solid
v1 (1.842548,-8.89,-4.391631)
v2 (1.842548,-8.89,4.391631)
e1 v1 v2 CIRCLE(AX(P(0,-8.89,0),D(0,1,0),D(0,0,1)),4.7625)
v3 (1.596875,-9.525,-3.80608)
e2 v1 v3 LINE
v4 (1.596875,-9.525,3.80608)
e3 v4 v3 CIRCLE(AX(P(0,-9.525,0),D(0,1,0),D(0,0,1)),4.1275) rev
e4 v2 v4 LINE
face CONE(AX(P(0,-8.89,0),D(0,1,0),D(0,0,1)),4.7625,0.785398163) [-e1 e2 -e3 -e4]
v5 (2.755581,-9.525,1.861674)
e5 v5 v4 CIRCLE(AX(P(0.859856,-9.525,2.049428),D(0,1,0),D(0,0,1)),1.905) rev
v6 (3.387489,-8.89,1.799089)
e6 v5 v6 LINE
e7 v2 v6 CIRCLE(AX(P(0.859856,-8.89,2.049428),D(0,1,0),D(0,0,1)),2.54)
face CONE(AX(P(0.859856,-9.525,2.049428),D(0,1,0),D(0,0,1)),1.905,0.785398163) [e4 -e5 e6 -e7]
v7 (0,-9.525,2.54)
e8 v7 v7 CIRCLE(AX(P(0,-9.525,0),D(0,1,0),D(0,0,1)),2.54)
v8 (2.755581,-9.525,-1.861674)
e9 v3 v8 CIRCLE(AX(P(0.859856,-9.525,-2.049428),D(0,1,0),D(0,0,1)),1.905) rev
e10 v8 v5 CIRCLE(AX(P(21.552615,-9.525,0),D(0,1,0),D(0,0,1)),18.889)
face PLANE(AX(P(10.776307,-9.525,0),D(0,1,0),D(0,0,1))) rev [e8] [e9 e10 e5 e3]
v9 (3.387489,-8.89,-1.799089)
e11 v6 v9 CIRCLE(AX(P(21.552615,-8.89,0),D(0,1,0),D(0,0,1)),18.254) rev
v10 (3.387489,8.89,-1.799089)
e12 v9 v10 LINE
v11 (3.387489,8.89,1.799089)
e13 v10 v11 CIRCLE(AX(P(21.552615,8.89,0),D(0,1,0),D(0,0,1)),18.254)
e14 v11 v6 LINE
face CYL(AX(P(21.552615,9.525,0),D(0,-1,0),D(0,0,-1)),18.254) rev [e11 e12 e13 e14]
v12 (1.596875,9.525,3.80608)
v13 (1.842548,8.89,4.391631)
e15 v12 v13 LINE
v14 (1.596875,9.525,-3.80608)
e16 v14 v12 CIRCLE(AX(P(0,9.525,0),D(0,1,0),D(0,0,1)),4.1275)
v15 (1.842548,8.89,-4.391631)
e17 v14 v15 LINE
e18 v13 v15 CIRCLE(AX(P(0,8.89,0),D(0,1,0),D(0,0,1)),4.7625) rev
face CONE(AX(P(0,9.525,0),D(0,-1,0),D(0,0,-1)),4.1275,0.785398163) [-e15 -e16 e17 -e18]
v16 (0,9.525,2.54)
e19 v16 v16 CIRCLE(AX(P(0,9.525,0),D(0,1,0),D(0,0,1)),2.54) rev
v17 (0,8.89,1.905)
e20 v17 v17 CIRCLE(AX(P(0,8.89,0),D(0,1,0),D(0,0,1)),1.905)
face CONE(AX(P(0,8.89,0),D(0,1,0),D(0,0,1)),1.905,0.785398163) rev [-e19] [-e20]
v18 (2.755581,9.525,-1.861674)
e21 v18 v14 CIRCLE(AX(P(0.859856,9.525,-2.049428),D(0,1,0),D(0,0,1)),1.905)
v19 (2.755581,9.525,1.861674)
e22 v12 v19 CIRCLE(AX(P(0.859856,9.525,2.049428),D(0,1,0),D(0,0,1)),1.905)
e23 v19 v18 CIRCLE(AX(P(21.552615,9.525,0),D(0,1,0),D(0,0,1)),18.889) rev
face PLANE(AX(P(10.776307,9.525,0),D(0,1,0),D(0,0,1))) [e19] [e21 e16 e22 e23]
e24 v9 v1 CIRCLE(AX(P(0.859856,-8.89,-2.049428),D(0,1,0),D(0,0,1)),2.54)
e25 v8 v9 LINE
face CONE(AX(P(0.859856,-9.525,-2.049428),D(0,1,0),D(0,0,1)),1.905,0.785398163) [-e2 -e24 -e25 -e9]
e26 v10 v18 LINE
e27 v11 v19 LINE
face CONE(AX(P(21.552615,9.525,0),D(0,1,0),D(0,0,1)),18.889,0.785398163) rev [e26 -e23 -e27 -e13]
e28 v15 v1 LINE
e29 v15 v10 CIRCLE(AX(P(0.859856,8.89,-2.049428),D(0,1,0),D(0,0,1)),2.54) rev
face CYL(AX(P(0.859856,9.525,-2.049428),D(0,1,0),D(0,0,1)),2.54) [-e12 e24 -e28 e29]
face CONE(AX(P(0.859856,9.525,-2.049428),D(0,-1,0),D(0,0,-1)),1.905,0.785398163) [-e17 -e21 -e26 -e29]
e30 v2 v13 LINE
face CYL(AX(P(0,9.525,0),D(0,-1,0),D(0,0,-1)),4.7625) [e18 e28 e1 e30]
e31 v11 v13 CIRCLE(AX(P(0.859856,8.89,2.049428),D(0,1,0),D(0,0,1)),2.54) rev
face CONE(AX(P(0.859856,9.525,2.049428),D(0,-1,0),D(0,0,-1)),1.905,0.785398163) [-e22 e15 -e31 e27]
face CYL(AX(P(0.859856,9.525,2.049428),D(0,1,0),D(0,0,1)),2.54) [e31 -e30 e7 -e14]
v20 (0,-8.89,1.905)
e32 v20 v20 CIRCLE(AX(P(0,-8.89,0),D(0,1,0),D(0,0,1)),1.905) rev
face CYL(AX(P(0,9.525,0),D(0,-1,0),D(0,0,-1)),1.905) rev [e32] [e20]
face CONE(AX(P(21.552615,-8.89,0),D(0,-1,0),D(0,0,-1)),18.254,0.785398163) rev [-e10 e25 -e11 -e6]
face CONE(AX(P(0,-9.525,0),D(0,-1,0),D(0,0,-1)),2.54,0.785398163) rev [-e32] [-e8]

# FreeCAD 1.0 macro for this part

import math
import FreeCAD as App
import Part
import Sketcher
Q = App.Units.Quantity


def edges_at(feature, points):
    """Names of the edges that pass closest to the given points."""
    edges = feature.Shape.Edges
    near = lambda p: min(range(len(edges)), key=lambda i: edges[i].distToShape(Part.Vertex(*p))[0])
    return sorted({f"Edge{near(p) + 1}" for p in points})

doc = App.newDocument("Part")
body = doc.addObject("PartDesign::Body", "Body")

# Sketch on XZ plane
sketch1 = body.newObject("Sketcher::SketchObject", "Sketch")
sketch1.AttachmentSupport = (doc.getObject("XZ_Plane"), [""])
sketch1.MapMode = "FlatFace"
sketch1.addGeometry(Part.ArcOfCircle(Part.Circle(App.Vector(21.6, 0, 0), App.Vector(0, 0, 1), 18.3), math.radians(170.06), math.radians(189.94)), False)
sketch1.addGeometry(Part.ArcOfCircle(Part.Circle(App.Vector(0, 0, 0), App.Vector(0, 0, 1), 4.8), math.radians(41), math.radians(319)), False)
sketch1.addGeometry(Part.Circle(App.Vector(0, 0, 0), App.Vector(0, 0, 1), 1.9), False)
sketch1.addConstraint(Sketcher.Constraint("Coincident", 0, 1, 1, 1))
sketch1.addConstraint(Sketcher.Constraint("Coincident", 1, 2, 0, 2))
sketch1.addConstraint(Sketcher.Constraint("Coincident", 1, 3, -1, 1))
sketch1.addConstraint(Sketcher.Constraint("Coincident", 2, 3, -1, 1))
sketch1.addConstraint(Sketcher.Constraint("PointOnObject", 0, 3, -1))
sketch1.addConstraint(Sketcher.Constraint("Diameter", 2, Q("0.15 in")))
sketch1.addConstraint(Sketcher.Constraint("Radius", 1, Q("0.1875 in")))
sketch1.addConstraint(Sketcher.Constraint("Radius", 0, 18.254))
sketch1.addConstraint(Sketcher.Constraint("DistanceY", -1, 1, 0, 1, 3.149529))
pad1 = body.newObject("PartDesign::Pad", "Pad")
pad1.Profile = sketch1
pad1.Length = Q("0.75 in")
pad1.Midplane = True
doc.recompute()

fillet = body.newObject("PartDesign::Fillet", "Fillet")
fillet.Base = (pad1, edges_at(pad1, [(3.572, 0, -3.15), (3.572, 0, 3.15)]))
fillet.Radius = Q("0.1 in")
doc.recompute()

chamfer = body.newObject("PartDesign::Chamfer", "Chamfer")
chamfer.Base = (fillet, edges_at(fillet, [
    (-4.763, -9.525, 0),
    (-4.763, 9.525, 0),
    (3.299, -9.525, 0),
    (3.042, -9.525, 3.35),
    (3.042, -9.525, -3.35),
    (3.299, 9.525, 0),
    (3.042, 9.525, 3.35),
    (3.042, 9.525, -3.35),
    (-1.905, -9.525, 0),
    (-1.905, 9.525, 0),
]))
chamfer.Size = Q("0.025 in")

doc.recompute()
